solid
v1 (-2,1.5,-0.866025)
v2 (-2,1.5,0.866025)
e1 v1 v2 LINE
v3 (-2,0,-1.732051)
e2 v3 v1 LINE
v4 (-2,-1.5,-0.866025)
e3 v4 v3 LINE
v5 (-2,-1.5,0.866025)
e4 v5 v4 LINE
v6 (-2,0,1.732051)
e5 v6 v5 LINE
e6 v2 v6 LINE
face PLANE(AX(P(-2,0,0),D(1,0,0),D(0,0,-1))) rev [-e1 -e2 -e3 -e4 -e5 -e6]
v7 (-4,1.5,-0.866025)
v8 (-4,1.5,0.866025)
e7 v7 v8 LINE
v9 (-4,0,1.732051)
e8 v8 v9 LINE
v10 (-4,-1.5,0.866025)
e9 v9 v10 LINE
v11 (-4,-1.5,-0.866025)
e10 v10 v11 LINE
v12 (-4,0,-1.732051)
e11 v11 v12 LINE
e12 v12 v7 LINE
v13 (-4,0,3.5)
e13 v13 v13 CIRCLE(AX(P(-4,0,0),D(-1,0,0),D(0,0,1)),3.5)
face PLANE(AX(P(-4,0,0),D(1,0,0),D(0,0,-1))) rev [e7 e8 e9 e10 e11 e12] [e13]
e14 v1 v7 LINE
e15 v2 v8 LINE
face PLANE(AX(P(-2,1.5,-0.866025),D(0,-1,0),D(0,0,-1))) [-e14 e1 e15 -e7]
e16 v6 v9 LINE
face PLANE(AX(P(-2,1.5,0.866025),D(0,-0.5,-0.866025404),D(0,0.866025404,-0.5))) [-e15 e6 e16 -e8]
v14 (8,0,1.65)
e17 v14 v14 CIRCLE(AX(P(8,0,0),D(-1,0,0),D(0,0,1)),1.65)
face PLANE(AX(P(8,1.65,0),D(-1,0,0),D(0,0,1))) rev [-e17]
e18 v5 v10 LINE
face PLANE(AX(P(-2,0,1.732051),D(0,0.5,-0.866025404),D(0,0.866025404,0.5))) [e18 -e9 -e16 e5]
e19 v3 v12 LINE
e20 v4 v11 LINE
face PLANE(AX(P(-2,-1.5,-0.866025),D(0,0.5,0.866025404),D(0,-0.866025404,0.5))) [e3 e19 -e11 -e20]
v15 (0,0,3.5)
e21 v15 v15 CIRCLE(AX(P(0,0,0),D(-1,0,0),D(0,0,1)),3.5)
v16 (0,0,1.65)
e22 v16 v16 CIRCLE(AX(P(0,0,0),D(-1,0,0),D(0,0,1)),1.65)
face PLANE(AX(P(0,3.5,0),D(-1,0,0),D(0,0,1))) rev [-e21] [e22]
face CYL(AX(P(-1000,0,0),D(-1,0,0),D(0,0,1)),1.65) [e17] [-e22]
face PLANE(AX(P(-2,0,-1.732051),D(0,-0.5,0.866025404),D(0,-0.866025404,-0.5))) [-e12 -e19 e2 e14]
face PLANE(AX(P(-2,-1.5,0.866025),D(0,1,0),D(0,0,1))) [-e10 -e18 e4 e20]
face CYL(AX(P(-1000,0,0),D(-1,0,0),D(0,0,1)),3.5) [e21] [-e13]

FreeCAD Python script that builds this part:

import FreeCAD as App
import Part
import Sketcher
Q = App.Units.Quantity


def add_polygon(sketch, points):
    """Adds a closed chain of lines whose ends are joined by coincident constraints."""
    first, n = sketch.GeometryCount, len(points)
    for a, b in zip(points, points[1:] + points[:1]):
        sketch.addGeometry(Part.LineSegment(App.Vector(*a, 0), App.Vector(*b, 0)), False)
    for i in range(n):
        sketch.addConstraint(Sketcher.Constraint("Coincident", first + i, 2, first + (i + 1) % n, 1))

doc = App.newDocument("Part")
body = doc.addObject("PartDesign::Body", "Body")

# Sketch on XY plane
sketch1 = body.newObject("Sketcher::SketchObject", "Sketch")
sketch1.AttachmentSupport = (doc.getObject("XY_Plane"), [""])
sketch1.MapMode = "FlatFace"
add_polygon(sketch1, [(-4, 3.5), (-4, 0), (8, 0), (8, 1.6), (0, 1.6), (0, 3.5)])  # lines 0-5
sketch1.addConstraint([
    Sketcher.Constraint("Vertical", 0),
    Sketcher.Constraint("Horizontal", 1),
    Sketcher.Constraint("Vertical", 2),
    Sketcher.Constraint("Horizontal", 3),
    Sketcher.Constraint("Vertical", 4),
    Sketcher.Constraint("Horizontal", 5),
    Sketcher.Constraint("PointOnObject", 0, 2, -1),
    Sketcher.Constraint("PointOnObject", 3, 2, -2),
    Sketcher.Constraint("DistanceX", 1, 1, 1, 2, Q("12 mm")),
    Sketcher.Constraint("DistanceX", 3, 2, 3, 1, Q("8 mm")),
    Sketcher.Constraint("DistanceY", 0, 2, 0, 1, Q("3.5 mm")),
    Sketcher.Constraint("DistanceY", 2, 1, 2, 2, Q("1.65 mm")),
])
revolution = body.newObject("PartDesign::Revolution", "Revolution")
revolution.Profile = sketch1
revolution.ReferenceAxis = (sketch1, ["H_Axis"])
revolution.Angle = 360

# Sketch on YZ plane
sketch2 = body.newObject("Sketcher::SketchObject", "Sketch001")
sketch2.AttachmentSupport = (doc.getObject("YZ_Plane"), [""])
sketch2.MapMode = "FlatFace"
sketch2.AttachmentOffset = App.Placement(App.Vector(0, 0, -4), App.Rotation())
add_polygon(sketch2, [(0, -1.7), (1.5, -0.9), (1.5, 0.9), (0, 1.7), (-1.5, 0.9), (-1.5, -0.9)])  # lines 0-5
sketch2.addConstraint([
    Sketcher.Constraint("Vertical", 1),
    Sketcher.Constraint("Vertical", 4),
    Sketcher.Constraint("Symmetric", 0, 2, 3, 2, -1, 1),
    Sketcher.Constraint("Symmetric", 2, 2, 5, 2, -1, 1),
    Sketcher.Constraint("PointOnObject", 2, 2, -2),
    Sketcher.Constraint("Parallel", 2, 5),
    Sketcher.Constraint("Horizontal", 1, 2, 3, 2),
    Sketcher.Constraint("Angle", 0, Q("30 deg")),
    Sketcher.Constraint("DistanceX", 3, 2, 1, 2, Q("3 mm")),
    Sketcher.Constraint("DistanceY", 1, 1, 1, 2, Q("1.732051 mm")),
])
pocket1 = body.newObject("PartDesign::Pocket", "Pocket")
pocket1.Profile = sketch2
pocket1.Length = 2
pocket1.Reversed = True

doc.recompute()
